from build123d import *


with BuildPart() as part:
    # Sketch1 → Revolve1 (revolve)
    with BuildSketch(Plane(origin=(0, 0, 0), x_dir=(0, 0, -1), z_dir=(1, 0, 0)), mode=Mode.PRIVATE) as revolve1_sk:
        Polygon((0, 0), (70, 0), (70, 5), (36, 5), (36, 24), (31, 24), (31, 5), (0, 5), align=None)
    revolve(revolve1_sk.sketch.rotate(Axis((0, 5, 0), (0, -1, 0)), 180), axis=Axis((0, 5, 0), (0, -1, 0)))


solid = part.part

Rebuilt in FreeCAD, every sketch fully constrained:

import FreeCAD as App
import Part
import Sketcher
Q = App.Units.Quantity


def add_polygon(sketch, points):
    """Adds a closed chain of lines whose ends are joined by coincident constraints."""
    first, n = sketch.GeometryCount, len(points)
    for a, b in zip(points, points[1:] + points[:1]):
        sketch.addGeometry(Part.LineSegment(App.Vector(*a, 0), App.Vector(*b, 0)), False)
    for i in range(n):
        sketch.addConstraint(Sketcher.Constraint("Coincident", first + i, 2, first + (i + 1) % n, 1))

doc = App.newDocument("Part")
body = doc.addObject("PartDesign::Body", "Body")

# Sketch on YZ plane
sketch1 = doc.addObject("Sketcher::SketchObject", "Sketch")
body.addObject(sketch1)
sketch1.AttachmentSupport = (doc.YZ_Plane, [""])
sketch1.MapMode = "FlatFace"
add_polygon(sketch1, [(0, 0), (0, -70), (5, -70), (5, -36), (24, -36), (24, -31), (5, -31), (5, 0)])  # lines 0-7
sketch1.addConstraint([
    Sketcher.Constraint("Vertical", 0),
    Sketcher.Constraint("Horizontal", 1),
    Sketcher.Constraint("Vertical", 2),
    Sketcher.Constraint("Horizontal", 3),
    Sketcher.Constraint("Vertical", 4),
    Sketcher.Constraint("Horizontal", 5),
    Sketcher.Constraint("Vertical", 6),
    Sketcher.Constraint("Horizontal", 7),
    Sketcher.Constraint("Coincident", 7, 2, -1, 1),
    Sketcher.Constraint("Vertical", 2, 2, 5, 2),
    Sketcher.Constraint("Equal", 7, 4),
    Sketcher.Constraint("DistanceX", 1, 1, 1, 2, Q("5 mm")),
    Sketcher.Constraint("DistanceX", 3, 1, 3, 2, Q("19 mm")),
    Sketcher.Constraint("DistanceY", 0, 2, 0, 1, Q("70 mm")),
    Sketcher.Constraint("DistanceY", 2, 1, 2, 2, Q("34 mm")),
])
revolution = doc.addObject("PartDesign::Revolution", "Revolution")
body.addObject(revolution)
revolution.Profile = sketch1
revolution.ReferenceAxis = (sketch1, ["H_Axis"])
revolution.Angle = 360

doc.recompute()
